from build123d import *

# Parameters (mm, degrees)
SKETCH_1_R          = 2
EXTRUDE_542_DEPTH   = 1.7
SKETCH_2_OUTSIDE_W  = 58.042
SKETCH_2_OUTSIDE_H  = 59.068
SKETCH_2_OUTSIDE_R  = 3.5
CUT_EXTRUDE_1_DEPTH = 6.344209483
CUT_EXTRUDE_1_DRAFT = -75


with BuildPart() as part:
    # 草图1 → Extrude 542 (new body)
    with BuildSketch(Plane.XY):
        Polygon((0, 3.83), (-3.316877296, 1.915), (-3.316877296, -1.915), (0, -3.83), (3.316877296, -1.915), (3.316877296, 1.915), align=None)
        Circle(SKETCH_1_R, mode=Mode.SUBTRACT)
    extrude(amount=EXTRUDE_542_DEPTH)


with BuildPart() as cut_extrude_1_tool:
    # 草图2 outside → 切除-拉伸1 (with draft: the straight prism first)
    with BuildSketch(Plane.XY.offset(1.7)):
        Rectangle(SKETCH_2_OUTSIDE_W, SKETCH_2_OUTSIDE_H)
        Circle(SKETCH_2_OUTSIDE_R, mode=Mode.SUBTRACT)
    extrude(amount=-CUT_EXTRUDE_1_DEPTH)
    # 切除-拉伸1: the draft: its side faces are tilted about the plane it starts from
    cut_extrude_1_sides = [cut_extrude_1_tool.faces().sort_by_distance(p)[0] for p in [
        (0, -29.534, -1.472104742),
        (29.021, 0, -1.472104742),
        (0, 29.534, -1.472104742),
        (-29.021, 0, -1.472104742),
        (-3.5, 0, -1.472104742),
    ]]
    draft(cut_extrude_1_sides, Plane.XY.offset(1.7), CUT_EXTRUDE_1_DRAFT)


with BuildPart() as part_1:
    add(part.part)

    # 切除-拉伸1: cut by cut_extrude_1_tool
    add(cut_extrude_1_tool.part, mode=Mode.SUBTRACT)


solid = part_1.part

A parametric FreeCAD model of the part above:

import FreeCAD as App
import Part
import Sketcher
from FreeCAD import Vector
Q = App.Units.Quantity


def faces_at(feature, points):
    """Names of the faces that lie closest to the given points."""
    faces = feature.Shape.Faces
    near = lambda p: min(range(len(faces)), key=lambda i: faces[i].distToShape(Part.Vertex(*p))[0])
    return sorted({f"Face{near(p) + 1}" for p in points})


def add_polygon(sketch, points):
    """Adds a closed chain of lines whose ends are joined by coincident constraints."""
    first, n = sketch.GeometryCount, len(points)
    for a, b in zip(points, points[1:] + points[:1]):
        sketch.addGeometry(Part.LineSegment(App.Vector(*a, 0), App.Vector(*b, 0)), False)
    for i in range(n):
        sketch.addConstraint(Sketcher.Constraint("Coincident", first + i, 2, first + (i + 1) % n, 1))

doc = App.newDocument("Part")
body = doc.addObject("PartDesign::Body", "Body")

sketch1 = doc.addObject("Sketcher::SketchObject", "Sketch")
body.addObject(sketch1)
sketch1.AttachmentSupport = (doc.XY_Plane, [""])
sketch1.MapMode = "FlatFace"
add_polygon(sketch1, [(0, 3.83), (-3.316877, 1.915), (-3.316877, -1.915), (0, -3.83), (3.316877, -1.915), (3.316877, 1.915)])
sketch1.addGeometry(Part.Circle(Vector(0, 0, 0), Vector(0, 0, 1), 2), False)
sketch1.addConstraint([
    Sketcher.Constraint("Vertical", 1),
    Sketcher.Constraint("Vertical", 4),
    Sketcher.Constraint("Coincident", 6, 3, -1, 1),
    Sketcher.Constraint("Symmetric", 0, 2, 3, 2, -1, 1),
    Sketcher.Constraint("Symmetric", 2, 2, 5, 2, -1, 1),
    Sketcher.Constraint("PointOnObject", 2, 2, -2),
    Sketcher.Constraint("Parallel", 2, 5),
    Sketcher.Constraint("Horizontal", 1, 2, 3, 2),
    Sketcher.Constraint("Diameter", 6, Q("4 mm")),
    Sketcher.Constraint("Angle", 0, Q("-150 deg")),
    Sketcher.Constraint("DistanceY", 1, 2, 1, 1, Q("3.83 mm")),
    Sketcher.Constraint("Distance", 0, Q("3.83 mm")),
])
pad1 = doc.addObject("PartDesign::Pad", "Pad")
body.addObject(pad1)
pad1.Profile = sketch1
pad1.Length = 1.7
body2 = doc.addObject("PartDesign::Body", "Body001")

sketch2 = doc.addObject("Sketcher::SketchObject", "Sketch001")
body2.addObject(sketch2)
sketch2.AttachmentSupport = (doc.getObject("XY_Plane001"), [""])
sketch2.MapMode = "FlatFace"
sketch2.AttachmentOffset = App.Placement(Vector(0, 0, 1.7), App.Rotation())
add_polygon(sketch2, [(-29.021, 29.534), (-29.021, -29.534), (29.021, -29.534), (29.021, 29.534)])
sketch2.addGeometry(Part.Circle(Vector(0, 0, 0), Vector(0, 0, 1), 3.5), False)
sketch2.addConstraint([
    Sketcher.Constraint("Vertical", 0),
    Sketcher.Constraint("Horizontal", 1),
    Sketcher.Constraint("Vertical", 2),
    Sketcher.Constraint("Horizontal", 3),
    Sketcher.Constraint("Coincident", 4, 3, -1, 1),
    Sketcher.Constraint("Symmetric", 0, 2, 2, 2, -1, 1),
    Sketcher.Constraint("Diameter", 4, Q("7 mm")),
    Sketcher.Constraint("DistanceX", 1, 1, 1, 2, Q("58.042 mm")),
    Sketcher.Constraint("DistanceY", 0, 2, 0, 1, Q("59.068 mm")),
])
pad2 = doc.addObject("PartDesign::Pad", "Pad001")
body2.addObject(pad2)
pad2.Profile = sketch2
pad2.Length = 6.344209
pad2.Reversed = True
doc.recompute()

datumplane = doc.addObject("PartDesign::Plane", "DatumPlane")
body2.addObject(datumplane)
datumplane.AttachmentSupport = (doc.getObject("XY_Plane001"), [""])
datumplane.MapMode = "FlatFace"
datumplane.AttachmentOffset = App.Placement(Vector(0, 0, 1.7), App.Rotation())
draft = doc.addObject("PartDesign::Draft", "Draft")
body2.addObject(draft)
draft.Base = (pad2, faces_at(pad2, [
    (0, -29.534, -1.472),
    (29.021, 0, -1.472),
    (0, 29.534, -1.472),
    (-29.021, 0, -1.472),
    (-3.5, 0, -1.472),
]))
draft.NeutralPlane = (datumplane, [""])
draft.Angle = 75
draft.Reversed = True
doc.recompute()

boolean = doc.addObject("PartDesign::Boolean", "Boolean")
body.addObject(boolean)
boolean.Type = "Cut"
boolean.addObjects([body2])

doc.recompute()
